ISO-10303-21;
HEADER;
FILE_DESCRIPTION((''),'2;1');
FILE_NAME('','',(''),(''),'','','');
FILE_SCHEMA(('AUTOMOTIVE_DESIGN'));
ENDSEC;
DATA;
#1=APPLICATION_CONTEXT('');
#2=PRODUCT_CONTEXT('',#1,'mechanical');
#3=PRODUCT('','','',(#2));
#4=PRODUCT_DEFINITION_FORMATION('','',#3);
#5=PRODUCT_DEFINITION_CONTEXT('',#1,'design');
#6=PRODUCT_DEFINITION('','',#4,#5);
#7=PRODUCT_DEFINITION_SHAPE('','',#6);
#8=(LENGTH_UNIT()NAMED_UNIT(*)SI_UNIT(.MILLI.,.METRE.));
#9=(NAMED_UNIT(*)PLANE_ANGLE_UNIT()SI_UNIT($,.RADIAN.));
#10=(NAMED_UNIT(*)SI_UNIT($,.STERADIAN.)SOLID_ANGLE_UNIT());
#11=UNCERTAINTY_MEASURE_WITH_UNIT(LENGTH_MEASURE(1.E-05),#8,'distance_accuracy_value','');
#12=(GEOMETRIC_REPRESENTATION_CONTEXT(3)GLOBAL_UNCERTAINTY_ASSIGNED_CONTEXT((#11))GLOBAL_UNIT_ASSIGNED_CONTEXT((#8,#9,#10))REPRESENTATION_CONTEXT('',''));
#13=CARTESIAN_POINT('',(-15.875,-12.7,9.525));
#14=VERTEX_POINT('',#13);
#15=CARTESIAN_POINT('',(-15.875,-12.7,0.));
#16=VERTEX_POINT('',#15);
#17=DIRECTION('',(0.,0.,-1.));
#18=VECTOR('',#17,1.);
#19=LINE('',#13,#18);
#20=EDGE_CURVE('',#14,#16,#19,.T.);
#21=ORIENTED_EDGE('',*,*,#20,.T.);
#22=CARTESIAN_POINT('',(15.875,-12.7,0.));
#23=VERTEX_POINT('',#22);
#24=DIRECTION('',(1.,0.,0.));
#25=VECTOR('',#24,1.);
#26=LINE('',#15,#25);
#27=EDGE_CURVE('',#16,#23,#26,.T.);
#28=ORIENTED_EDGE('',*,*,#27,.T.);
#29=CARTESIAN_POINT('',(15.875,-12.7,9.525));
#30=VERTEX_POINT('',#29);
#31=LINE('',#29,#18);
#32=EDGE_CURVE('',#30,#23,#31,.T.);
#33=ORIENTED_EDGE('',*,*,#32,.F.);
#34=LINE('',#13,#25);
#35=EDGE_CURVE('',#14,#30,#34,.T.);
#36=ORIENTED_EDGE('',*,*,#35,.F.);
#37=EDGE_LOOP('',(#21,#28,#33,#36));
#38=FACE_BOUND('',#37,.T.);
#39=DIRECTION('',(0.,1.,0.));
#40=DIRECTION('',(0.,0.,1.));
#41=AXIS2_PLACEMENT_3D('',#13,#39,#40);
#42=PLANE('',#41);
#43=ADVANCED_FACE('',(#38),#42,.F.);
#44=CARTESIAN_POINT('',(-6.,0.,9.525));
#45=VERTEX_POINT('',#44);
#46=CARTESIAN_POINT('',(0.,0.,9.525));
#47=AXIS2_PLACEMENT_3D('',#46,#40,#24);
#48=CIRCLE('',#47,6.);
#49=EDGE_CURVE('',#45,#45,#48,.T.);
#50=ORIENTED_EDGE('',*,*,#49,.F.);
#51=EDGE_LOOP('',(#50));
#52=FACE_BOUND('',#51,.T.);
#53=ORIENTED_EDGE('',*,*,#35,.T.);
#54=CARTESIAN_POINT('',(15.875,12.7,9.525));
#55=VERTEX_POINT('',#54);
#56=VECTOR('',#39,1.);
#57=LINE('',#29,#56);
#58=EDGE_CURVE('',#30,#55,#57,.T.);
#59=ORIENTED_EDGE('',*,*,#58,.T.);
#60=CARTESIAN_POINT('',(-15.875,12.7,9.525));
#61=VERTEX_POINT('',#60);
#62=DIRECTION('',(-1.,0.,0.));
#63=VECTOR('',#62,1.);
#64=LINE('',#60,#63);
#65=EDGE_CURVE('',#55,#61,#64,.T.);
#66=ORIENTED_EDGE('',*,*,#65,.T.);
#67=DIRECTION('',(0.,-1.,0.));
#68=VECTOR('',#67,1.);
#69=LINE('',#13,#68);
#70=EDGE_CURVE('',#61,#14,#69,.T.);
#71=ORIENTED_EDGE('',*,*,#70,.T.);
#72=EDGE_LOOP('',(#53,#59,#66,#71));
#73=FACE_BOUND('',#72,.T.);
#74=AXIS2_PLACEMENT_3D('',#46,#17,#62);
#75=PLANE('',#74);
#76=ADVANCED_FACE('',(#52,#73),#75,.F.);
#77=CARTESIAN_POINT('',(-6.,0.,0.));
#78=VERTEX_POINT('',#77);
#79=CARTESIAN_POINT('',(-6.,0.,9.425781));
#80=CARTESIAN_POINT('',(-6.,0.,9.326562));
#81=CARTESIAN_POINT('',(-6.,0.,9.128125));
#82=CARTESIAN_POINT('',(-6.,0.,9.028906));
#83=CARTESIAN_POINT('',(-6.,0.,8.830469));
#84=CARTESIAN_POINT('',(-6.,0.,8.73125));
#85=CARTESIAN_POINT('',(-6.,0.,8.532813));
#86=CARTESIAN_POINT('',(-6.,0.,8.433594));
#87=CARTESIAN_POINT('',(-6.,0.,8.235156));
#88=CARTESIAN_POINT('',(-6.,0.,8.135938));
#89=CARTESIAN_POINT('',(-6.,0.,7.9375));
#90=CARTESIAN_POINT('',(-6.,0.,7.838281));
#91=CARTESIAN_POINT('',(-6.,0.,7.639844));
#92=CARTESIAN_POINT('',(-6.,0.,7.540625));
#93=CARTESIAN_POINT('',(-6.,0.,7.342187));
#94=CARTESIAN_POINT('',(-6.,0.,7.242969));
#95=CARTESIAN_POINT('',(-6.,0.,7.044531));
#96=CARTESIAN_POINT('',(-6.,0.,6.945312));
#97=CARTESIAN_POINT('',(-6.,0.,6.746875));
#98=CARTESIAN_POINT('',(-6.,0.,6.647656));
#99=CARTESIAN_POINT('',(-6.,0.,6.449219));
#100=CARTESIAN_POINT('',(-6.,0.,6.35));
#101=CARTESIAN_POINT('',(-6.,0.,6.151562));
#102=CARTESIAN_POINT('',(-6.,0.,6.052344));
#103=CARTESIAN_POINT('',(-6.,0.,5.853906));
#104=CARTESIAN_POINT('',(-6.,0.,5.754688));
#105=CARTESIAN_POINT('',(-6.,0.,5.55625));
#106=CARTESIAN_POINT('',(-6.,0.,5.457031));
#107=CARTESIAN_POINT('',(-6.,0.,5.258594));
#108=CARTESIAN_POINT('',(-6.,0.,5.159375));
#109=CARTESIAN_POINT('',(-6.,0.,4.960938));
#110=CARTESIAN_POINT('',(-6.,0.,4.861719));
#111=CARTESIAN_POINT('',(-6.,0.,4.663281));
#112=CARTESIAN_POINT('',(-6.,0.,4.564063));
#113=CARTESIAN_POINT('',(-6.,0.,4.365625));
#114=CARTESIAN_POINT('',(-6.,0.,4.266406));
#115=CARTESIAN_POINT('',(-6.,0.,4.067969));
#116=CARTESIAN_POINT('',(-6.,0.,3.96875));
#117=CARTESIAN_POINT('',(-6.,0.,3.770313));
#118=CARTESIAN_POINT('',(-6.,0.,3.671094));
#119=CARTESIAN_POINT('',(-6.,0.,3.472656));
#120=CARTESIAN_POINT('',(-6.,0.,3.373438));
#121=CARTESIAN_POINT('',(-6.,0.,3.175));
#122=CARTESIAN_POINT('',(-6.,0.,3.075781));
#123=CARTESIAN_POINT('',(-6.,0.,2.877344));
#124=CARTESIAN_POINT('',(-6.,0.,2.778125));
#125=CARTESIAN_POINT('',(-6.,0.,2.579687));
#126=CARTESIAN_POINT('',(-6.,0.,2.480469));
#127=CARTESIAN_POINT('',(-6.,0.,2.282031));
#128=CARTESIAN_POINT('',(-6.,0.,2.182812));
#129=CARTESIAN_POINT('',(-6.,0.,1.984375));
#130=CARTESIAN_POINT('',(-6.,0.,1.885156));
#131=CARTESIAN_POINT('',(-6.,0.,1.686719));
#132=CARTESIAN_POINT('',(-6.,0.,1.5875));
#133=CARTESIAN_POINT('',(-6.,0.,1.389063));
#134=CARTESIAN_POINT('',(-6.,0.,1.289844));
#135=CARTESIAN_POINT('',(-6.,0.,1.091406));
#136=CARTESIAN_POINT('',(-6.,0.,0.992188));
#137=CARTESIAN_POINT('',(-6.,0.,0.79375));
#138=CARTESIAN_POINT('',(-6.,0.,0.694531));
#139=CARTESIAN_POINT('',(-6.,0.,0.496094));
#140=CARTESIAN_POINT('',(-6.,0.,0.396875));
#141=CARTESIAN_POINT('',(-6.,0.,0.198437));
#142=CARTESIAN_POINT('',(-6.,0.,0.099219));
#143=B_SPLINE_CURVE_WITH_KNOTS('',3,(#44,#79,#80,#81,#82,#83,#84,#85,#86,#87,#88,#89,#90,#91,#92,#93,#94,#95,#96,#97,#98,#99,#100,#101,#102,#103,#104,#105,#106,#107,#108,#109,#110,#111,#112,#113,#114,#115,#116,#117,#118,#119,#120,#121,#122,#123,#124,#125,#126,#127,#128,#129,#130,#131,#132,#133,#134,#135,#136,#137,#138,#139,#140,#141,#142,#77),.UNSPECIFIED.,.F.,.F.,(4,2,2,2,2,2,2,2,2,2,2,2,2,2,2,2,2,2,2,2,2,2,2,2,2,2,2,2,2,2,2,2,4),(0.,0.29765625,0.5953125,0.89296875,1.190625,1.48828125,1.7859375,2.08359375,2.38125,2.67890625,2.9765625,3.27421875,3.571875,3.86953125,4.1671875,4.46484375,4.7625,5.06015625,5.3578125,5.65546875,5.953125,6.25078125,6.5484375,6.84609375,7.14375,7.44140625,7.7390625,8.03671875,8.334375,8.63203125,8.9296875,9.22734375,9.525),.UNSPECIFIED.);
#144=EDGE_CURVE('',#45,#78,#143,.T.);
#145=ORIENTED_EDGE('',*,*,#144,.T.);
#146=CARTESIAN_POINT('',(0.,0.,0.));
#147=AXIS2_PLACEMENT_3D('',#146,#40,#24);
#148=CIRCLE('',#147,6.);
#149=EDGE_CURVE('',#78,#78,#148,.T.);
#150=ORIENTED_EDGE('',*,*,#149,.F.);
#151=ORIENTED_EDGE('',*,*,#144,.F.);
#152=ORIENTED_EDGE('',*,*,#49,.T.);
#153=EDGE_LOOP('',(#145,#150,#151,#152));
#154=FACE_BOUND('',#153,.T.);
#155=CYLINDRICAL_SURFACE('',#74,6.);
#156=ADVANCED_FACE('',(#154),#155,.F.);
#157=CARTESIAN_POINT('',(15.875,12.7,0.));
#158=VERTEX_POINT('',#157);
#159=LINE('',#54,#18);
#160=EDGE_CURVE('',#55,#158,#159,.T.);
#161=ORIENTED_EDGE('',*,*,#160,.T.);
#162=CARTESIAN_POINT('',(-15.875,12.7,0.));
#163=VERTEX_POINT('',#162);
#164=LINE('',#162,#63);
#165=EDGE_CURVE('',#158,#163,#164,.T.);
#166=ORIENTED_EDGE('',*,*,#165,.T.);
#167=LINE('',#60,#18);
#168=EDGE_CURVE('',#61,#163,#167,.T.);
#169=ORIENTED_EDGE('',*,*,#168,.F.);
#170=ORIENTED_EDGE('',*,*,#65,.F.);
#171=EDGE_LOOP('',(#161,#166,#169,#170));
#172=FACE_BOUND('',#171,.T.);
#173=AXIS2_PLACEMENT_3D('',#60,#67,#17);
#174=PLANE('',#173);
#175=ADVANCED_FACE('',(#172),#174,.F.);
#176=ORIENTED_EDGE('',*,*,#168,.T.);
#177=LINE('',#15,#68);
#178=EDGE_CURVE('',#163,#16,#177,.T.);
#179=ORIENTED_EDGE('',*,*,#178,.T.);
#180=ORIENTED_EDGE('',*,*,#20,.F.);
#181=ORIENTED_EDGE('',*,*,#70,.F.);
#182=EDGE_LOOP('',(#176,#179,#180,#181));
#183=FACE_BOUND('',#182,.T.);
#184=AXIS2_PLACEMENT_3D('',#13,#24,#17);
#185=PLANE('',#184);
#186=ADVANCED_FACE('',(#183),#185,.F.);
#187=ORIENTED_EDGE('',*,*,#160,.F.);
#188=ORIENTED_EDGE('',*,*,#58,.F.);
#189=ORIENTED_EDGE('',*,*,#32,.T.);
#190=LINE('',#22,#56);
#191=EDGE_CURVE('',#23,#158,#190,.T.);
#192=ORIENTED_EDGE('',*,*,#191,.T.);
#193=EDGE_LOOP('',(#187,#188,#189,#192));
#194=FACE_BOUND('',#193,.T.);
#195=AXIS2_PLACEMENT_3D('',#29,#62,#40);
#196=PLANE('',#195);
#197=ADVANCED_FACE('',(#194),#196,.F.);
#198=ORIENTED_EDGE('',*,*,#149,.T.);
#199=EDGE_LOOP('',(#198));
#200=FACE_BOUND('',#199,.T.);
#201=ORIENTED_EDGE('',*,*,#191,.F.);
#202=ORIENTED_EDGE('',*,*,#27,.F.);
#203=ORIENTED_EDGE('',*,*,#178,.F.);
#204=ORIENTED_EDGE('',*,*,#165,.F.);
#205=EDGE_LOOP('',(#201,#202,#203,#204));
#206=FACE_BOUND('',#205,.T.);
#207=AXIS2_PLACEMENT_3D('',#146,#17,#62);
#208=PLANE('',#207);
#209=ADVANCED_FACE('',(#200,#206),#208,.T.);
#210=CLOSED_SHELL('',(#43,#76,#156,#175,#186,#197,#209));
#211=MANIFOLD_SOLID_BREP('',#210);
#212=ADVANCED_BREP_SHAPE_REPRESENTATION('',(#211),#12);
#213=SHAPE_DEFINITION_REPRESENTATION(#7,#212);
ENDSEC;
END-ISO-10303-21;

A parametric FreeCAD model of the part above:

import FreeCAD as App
import Part
import Sketcher

V = App.Vector
Q = App.Units.Quantity


def add_polygon(sketch, points):
    """Adds a closed chain of lines whose ends are joined by coincident constraints."""
    first, n = sketch.GeometryCount, len(points)
    for a, b in zip(points, points[1:] + points[:1]):
        sketch.addGeometry(Part.LineSegment(App.Vector(*a, 0), App.Vector(*b, 0)), False)
    for i in range(n):
        sketch.addConstraint(Sketcher.Constraint("Coincident", first + i, 2, first + (i + 1) % n, 1))

doc = App.newDocument("Part")
body = doc.addObject("PartDesign::Body", "Body")

sketch1 = doc.addObject("Sketcher::SketchObject", "Sketch")
body.addObject(sketch1)
sketch1.AttachmentSupport = (doc.XY_Plane, [""])
sketch1.MapMode = "FlatFace"
add_polygon(sketch1, [(-16, 13), (-16, -13), (16, -13), (16, 13)])
sketch1.addGeometry(Part.Circle(V(0, 0, 0), V(0, 0, 1), 6), False)
sketch1.addConstraint(Sketcher.Constraint("Vertical", 0))
sketch1.addConstraint(Sketcher.Constraint("Horizontal", 1))
sketch1.addConstraint(Sketcher.Constraint("Vertical", 2))
sketch1.addConstraint(Sketcher.Constraint("Horizontal", 3))
sketch1.addConstraint(Sketcher.Constraint("Coincident", 4, 3, -1, 1))
sketch1.addConstraint(Sketcher.Constraint("Symmetric", 0, 2, 2, 2, -1, 1))
sketch1.addConstraint(Sketcher.Constraint("DistanceY", 0, 2, 0, 1, Q("1 in")))
sketch1.addConstraint(Sketcher.Constraint("DistanceX", 1, 1, 1, 2, Q("1.25 in")))
sketch1.addConstraint(Sketcher.Constraint("Diameter", 4, 12.0))
pad1 = doc.addObject("PartDesign::Pad", "Pad")
body.addObject(pad1)
pad1.Profile = sketch1
pad1.Length = Q("0.375 in")

doc.recompute()
